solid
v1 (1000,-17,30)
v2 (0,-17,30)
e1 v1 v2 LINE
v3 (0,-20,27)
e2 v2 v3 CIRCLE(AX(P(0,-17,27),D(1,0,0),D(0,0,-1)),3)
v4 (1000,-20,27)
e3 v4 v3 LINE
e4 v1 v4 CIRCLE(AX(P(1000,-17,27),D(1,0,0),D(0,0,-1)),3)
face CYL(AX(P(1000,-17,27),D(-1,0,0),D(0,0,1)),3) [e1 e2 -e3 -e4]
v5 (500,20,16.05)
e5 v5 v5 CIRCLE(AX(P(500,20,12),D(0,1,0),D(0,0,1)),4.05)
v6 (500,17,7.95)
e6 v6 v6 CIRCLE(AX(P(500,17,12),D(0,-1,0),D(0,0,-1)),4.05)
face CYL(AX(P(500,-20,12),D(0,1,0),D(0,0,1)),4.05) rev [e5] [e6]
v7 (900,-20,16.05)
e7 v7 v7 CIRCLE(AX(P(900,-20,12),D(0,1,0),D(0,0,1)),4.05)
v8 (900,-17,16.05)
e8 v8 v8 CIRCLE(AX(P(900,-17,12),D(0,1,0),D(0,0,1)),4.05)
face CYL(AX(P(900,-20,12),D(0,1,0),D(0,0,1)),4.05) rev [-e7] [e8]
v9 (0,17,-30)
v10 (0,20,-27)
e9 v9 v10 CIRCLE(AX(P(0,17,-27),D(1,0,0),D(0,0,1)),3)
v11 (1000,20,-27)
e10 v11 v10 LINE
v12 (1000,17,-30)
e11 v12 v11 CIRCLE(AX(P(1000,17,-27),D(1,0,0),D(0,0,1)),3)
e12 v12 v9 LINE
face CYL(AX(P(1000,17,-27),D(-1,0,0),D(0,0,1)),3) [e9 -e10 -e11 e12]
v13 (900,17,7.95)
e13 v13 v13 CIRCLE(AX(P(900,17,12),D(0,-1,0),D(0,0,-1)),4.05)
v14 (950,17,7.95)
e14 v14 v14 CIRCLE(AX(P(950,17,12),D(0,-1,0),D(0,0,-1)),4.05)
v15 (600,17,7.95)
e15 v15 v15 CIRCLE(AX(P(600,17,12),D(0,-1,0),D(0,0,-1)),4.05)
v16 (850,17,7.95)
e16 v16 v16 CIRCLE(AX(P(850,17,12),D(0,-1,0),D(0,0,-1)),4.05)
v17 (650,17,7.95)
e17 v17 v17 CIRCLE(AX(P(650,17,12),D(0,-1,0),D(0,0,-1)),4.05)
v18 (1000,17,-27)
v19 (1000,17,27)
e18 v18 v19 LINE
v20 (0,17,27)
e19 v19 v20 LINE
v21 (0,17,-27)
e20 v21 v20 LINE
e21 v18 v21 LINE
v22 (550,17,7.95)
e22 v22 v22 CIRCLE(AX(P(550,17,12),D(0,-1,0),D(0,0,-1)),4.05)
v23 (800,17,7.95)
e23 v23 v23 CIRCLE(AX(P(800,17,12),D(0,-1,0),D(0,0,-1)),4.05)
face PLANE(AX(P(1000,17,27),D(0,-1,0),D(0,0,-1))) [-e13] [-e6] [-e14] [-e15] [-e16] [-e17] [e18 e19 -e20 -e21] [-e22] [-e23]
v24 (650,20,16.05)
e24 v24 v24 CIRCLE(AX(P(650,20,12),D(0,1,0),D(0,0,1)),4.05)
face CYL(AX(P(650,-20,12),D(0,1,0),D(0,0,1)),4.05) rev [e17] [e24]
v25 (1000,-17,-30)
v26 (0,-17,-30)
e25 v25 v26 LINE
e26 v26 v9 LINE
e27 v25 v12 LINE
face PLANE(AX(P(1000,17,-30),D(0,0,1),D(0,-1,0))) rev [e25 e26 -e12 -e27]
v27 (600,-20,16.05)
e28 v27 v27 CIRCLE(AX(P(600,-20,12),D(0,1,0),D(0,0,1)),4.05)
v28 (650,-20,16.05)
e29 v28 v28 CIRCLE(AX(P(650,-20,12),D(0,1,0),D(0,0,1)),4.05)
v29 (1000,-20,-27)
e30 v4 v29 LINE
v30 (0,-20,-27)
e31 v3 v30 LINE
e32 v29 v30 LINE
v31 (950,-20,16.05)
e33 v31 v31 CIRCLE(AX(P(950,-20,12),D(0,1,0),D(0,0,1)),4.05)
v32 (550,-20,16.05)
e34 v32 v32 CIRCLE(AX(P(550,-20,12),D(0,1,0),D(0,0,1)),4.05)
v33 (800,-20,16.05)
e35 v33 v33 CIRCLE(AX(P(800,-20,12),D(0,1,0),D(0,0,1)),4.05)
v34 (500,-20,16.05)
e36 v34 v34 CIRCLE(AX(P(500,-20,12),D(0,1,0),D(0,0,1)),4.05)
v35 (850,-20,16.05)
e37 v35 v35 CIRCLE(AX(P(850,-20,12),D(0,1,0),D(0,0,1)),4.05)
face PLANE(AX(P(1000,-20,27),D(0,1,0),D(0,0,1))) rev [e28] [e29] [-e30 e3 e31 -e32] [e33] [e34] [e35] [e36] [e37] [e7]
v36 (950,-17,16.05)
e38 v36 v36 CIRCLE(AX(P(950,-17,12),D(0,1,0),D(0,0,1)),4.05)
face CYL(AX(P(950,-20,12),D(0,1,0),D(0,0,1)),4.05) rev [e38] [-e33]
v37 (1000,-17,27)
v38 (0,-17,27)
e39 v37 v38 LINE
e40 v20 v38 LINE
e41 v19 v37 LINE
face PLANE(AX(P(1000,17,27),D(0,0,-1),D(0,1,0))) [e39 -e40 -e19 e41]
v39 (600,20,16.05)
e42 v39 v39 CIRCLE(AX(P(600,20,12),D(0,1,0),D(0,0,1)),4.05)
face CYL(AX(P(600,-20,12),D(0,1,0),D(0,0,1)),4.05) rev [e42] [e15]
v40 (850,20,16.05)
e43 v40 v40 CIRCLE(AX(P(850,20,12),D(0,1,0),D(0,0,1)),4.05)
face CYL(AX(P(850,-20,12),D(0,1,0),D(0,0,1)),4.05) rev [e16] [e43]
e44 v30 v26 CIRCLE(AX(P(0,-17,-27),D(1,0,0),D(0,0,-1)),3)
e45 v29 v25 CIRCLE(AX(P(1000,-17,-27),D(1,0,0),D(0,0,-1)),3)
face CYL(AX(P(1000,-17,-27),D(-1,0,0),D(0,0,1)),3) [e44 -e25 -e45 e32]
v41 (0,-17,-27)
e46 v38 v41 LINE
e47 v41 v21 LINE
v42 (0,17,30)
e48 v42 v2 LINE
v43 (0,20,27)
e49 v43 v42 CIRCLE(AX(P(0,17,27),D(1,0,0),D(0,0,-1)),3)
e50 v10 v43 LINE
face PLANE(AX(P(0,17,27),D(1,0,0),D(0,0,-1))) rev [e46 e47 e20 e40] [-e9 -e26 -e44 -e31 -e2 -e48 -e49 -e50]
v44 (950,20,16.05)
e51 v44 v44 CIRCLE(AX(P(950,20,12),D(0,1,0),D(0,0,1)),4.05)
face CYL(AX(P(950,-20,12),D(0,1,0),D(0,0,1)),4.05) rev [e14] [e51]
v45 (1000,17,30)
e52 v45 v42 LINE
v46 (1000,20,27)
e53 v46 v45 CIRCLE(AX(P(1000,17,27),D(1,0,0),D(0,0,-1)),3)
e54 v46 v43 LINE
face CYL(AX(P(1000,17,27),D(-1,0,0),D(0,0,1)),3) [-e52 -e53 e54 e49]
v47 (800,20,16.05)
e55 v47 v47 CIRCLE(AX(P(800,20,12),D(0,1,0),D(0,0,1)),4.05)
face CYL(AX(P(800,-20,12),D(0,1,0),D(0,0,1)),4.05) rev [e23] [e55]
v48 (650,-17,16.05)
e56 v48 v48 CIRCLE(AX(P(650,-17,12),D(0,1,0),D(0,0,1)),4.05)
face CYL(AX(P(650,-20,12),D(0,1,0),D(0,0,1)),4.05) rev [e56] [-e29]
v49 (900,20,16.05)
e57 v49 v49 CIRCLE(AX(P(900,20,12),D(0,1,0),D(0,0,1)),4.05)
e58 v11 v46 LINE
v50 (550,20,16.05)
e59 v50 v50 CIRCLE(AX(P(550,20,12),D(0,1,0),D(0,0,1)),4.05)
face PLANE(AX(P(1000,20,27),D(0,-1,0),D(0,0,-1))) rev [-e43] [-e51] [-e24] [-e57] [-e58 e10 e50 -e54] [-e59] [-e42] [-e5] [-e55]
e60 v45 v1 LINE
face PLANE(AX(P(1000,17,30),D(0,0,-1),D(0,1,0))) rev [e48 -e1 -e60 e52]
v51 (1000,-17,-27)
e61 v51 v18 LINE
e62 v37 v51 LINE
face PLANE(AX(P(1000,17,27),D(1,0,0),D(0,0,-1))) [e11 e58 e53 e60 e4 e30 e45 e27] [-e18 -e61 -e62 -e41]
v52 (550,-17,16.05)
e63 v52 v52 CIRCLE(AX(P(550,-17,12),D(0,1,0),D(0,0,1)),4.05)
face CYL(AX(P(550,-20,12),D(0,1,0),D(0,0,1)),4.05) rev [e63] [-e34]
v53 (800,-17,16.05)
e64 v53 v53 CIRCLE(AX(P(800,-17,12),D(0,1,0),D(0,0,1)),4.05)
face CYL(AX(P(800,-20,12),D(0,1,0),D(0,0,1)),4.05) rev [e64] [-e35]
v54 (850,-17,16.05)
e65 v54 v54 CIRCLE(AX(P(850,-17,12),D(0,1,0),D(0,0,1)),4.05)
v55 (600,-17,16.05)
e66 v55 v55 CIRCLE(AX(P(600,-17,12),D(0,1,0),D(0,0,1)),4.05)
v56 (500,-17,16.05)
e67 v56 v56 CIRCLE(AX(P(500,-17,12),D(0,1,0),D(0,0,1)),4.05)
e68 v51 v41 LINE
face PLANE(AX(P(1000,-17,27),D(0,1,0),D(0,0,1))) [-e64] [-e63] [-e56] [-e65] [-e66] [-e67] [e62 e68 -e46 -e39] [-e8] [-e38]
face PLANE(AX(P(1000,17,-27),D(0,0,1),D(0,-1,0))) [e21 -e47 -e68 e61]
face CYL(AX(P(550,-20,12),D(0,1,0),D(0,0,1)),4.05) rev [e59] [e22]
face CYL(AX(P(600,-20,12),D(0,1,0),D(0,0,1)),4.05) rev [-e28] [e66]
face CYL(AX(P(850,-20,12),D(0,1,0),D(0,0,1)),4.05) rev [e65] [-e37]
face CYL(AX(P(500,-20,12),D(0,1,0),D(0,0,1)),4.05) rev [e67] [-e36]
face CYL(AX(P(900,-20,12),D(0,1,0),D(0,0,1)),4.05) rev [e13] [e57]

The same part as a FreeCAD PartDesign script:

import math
import FreeCAD as App
import Part
import Sketcher

V = App.Vector
Q = App.Units.Quantity

doc = App.newDocument("Part")
body = doc.addObject("PartDesign::Body", "Body")

sketch1 = body.newObject("Sketcher::SketchObject", "Sketch")
sketch1.AttachmentSupport = (doc.getObject("YZ_Plane"), [""])
sketch1.MapMode = "FlatFace"
sketch1.addGeometry([
    Part.LineSegment(V(-17, -30, 0), V(17, -30, 0)),
    Part.ArcOfCircle(Part.Circle(V(17, -27, 0), V(0, 0, 1), 3), math.radians(-90), math.radians(0)),
    Part.LineSegment(V(20, -27, 0), V(20, 27, 0)),
    Part.ArcOfCircle(Part.Circle(V(17, 27, 0), V(0, 0, 1), 3), math.radians(0), math.radians(90)),
    Part.LineSegment(V(17, 30, 0), V(-17, 30, 0)),
    Part.ArcOfCircle(Part.Circle(V(-17, 27, 0), V(0, 0, 1), 3), math.radians(90), math.radians(180)),
    Part.LineSegment(V(-20, 27, 0), V(-20, -27, 0)),
    Part.ArcOfCircle(Part.Circle(V(-17, -27, 0), V(0, 0, 1), 3), math.radians(180), math.radians(270)),
    Part.LineSegment(V(-17, 27, 0), V(17, 27, 0)),
    Part.LineSegment(V(17, 27, 0), V(17, -27, 0)),
    Part.LineSegment(V(17, -27, 0), V(-17, -27, 0)),
    Part.LineSegment(V(-17, -27, 0), V(-17, 27, 0)),
], False)
sketch1.addConstraint([
    Sketcher.Constraint("Tangent", 0, 2, 1, 1),
    Sketcher.Constraint("Tangent", 1, 2, 2, 1),
    Sketcher.Constraint("Tangent", 2, 2, 3, 1),
    Sketcher.Constraint("Tangent", 3, 2, 4, 1),
    Sketcher.Constraint("Tangent", 4, 2, 5, 1),
    Sketcher.Constraint("Tangent", 5, 2, 6, 1),
    Sketcher.Constraint("Tangent", 6, 2, 7, 1),
    Sketcher.Constraint("Tangent", 7, 2, 0, 1),
    Sketcher.Constraint("Coincident", 8, 2, 9, 1),
    Sketcher.Constraint("Coincident", 9, 2, 10, 1),
    Sketcher.Constraint("Coincident", 10, 2, 11, 1),
    Sketcher.Constraint("Coincident", 11, 2, 8, 1),
    Sketcher.Constraint("Horizontal", 0),
    Sketcher.Constraint("Vertical", 2),
    Sketcher.Constraint("Horizontal", 4),
    Sketcher.Constraint("Vertical", 6),
    Sketcher.Constraint("Horizontal", 8),
    Sketcher.Constraint("Vertical", 9),
    Sketcher.Constraint("Horizontal", 10),
    Sketcher.Constraint("Vertical", 11),
    Sketcher.Constraint("Coincident", 8, 2, 3, 3),
    Sketcher.Constraint("Coincident", 9, 2, 1, 3),
    Sketcher.Constraint("Coincident", 10, 2, 7, 3),
    Sketcher.Constraint("Equal", 3, 5),
    Sketcher.Constraint("Symmetric", 1, 3, 5, 3, -1, 1),
    Sketcher.Constraint("Radius", 1, Q("3 mm")),
    Sketcher.Constraint("DistanceX", 0, 1, 0, 2, Q("34 mm")),
    Sketcher.Constraint("DistanceY", 2, 1, 2, 2, Q("54 mm")),
])
pad1 = body.newObject("PartDesign::Pad", "Pad")
pad1.Profile = sketch1
pad1.Length = 1000

sketch2 = body.newObject("Sketcher::SketchObject", "Sketch001")
sketch2.AttachmentSupport = (doc.getObject("XZ_Plane"), [""])
sketch2.MapMode = "FlatFace"
sketch2.AttachmentOffset = App.Placement(V(0, 0, -20), App.Rotation())
sketch2.addGeometry([
    Part.Circle(V(950, 12, 0), V(0, 0, 1), 4),
    Part.Circle(V(900, 12, 0), V(0, 0, 1), 4),
    Part.Circle(V(850, 12, 0), V(0, 0, 1), 4),
    Part.Circle(V(800, 12, 0), V(0, 0, 1), 4),
    Part.Circle(V(650, 12, 0), V(0, 0, 1), 4),
    Part.Circle(V(600, 12, 0), V(0, 0, 1), 4),
    Part.Circle(V(550, 12, 0), V(0, 0, 1), 4),
    Part.Circle(V(500, 12, 0), V(0, 0, 1), 4),
], False)
sketch2.addConstraint([
    Sketcher.Constraint("Equal", 0, 1),
    Sketcher.Constraint("Equal", 1, 2),
    Sketcher.Constraint("Equal", 2, 3),
    Sketcher.Constraint("Equal", 3, 4),
    Sketcher.Constraint("Equal", 4, 5),
    Sketcher.Constraint("Equal", 5, 6),
    Sketcher.Constraint("Equal", 6, 7),
    Sketcher.Constraint("Horizontal", 0, 3, 1, 3),
    Sketcher.Constraint("Horizontal", 1, 3, 2, 3),
    Sketcher.Constraint("Horizontal", 2, 3, 3, 3),
    Sketcher.Constraint("Horizontal", 3, 3, 4, 3),
    Sketcher.Constraint("Horizontal", 4, 3, 5, 3),
    Sketcher.Constraint("Horizontal", 5, 3, 6, 3),
    Sketcher.Constraint("Horizontal", 6, 3, 7, 3),
    Sketcher.Constraint("Diameter", 0, Q("8.1 mm")),
    Sketcher.Constraint("DistanceX", -1, 1, 0, 3, Q("950 mm")),
    Sketcher.Constraint("DistanceY", -1, 1, 0, 3, Q("12 mm")),
    Sketcher.Constraint("DistanceX", -1, 1, 1, 3, Q("900 mm")),
    Sketcher.Constraint("DistanceX", -1, 1, 2, 3, Q("850 mm")),
    Sketcher.Constraint("DistanceX", -1, 1, 3, 3, Q("800 mm")),
    Sketcher.Constraint("DistanceX", -1, 1, 4, 3, Q("650 mm")),
    Sketcher.Constraint("DistanceX", -1, 1, 5, 3, Q("600 mm")),
    Sketcher.Constraint("DistanceX", -1, 1, 6, 3, Q("550 mm")),
    Sketcher.Constraint("DistanceX", -1, 1, 7, 3, Q("500 mm")),
])
pocket1 = body.newObject("PartDesign::Pocket", "Pocket")
pocket1.Profile = sketch2
pocket1.Type = "ThroughAll"
pocket1.Reversed = True

doc.recompute()
